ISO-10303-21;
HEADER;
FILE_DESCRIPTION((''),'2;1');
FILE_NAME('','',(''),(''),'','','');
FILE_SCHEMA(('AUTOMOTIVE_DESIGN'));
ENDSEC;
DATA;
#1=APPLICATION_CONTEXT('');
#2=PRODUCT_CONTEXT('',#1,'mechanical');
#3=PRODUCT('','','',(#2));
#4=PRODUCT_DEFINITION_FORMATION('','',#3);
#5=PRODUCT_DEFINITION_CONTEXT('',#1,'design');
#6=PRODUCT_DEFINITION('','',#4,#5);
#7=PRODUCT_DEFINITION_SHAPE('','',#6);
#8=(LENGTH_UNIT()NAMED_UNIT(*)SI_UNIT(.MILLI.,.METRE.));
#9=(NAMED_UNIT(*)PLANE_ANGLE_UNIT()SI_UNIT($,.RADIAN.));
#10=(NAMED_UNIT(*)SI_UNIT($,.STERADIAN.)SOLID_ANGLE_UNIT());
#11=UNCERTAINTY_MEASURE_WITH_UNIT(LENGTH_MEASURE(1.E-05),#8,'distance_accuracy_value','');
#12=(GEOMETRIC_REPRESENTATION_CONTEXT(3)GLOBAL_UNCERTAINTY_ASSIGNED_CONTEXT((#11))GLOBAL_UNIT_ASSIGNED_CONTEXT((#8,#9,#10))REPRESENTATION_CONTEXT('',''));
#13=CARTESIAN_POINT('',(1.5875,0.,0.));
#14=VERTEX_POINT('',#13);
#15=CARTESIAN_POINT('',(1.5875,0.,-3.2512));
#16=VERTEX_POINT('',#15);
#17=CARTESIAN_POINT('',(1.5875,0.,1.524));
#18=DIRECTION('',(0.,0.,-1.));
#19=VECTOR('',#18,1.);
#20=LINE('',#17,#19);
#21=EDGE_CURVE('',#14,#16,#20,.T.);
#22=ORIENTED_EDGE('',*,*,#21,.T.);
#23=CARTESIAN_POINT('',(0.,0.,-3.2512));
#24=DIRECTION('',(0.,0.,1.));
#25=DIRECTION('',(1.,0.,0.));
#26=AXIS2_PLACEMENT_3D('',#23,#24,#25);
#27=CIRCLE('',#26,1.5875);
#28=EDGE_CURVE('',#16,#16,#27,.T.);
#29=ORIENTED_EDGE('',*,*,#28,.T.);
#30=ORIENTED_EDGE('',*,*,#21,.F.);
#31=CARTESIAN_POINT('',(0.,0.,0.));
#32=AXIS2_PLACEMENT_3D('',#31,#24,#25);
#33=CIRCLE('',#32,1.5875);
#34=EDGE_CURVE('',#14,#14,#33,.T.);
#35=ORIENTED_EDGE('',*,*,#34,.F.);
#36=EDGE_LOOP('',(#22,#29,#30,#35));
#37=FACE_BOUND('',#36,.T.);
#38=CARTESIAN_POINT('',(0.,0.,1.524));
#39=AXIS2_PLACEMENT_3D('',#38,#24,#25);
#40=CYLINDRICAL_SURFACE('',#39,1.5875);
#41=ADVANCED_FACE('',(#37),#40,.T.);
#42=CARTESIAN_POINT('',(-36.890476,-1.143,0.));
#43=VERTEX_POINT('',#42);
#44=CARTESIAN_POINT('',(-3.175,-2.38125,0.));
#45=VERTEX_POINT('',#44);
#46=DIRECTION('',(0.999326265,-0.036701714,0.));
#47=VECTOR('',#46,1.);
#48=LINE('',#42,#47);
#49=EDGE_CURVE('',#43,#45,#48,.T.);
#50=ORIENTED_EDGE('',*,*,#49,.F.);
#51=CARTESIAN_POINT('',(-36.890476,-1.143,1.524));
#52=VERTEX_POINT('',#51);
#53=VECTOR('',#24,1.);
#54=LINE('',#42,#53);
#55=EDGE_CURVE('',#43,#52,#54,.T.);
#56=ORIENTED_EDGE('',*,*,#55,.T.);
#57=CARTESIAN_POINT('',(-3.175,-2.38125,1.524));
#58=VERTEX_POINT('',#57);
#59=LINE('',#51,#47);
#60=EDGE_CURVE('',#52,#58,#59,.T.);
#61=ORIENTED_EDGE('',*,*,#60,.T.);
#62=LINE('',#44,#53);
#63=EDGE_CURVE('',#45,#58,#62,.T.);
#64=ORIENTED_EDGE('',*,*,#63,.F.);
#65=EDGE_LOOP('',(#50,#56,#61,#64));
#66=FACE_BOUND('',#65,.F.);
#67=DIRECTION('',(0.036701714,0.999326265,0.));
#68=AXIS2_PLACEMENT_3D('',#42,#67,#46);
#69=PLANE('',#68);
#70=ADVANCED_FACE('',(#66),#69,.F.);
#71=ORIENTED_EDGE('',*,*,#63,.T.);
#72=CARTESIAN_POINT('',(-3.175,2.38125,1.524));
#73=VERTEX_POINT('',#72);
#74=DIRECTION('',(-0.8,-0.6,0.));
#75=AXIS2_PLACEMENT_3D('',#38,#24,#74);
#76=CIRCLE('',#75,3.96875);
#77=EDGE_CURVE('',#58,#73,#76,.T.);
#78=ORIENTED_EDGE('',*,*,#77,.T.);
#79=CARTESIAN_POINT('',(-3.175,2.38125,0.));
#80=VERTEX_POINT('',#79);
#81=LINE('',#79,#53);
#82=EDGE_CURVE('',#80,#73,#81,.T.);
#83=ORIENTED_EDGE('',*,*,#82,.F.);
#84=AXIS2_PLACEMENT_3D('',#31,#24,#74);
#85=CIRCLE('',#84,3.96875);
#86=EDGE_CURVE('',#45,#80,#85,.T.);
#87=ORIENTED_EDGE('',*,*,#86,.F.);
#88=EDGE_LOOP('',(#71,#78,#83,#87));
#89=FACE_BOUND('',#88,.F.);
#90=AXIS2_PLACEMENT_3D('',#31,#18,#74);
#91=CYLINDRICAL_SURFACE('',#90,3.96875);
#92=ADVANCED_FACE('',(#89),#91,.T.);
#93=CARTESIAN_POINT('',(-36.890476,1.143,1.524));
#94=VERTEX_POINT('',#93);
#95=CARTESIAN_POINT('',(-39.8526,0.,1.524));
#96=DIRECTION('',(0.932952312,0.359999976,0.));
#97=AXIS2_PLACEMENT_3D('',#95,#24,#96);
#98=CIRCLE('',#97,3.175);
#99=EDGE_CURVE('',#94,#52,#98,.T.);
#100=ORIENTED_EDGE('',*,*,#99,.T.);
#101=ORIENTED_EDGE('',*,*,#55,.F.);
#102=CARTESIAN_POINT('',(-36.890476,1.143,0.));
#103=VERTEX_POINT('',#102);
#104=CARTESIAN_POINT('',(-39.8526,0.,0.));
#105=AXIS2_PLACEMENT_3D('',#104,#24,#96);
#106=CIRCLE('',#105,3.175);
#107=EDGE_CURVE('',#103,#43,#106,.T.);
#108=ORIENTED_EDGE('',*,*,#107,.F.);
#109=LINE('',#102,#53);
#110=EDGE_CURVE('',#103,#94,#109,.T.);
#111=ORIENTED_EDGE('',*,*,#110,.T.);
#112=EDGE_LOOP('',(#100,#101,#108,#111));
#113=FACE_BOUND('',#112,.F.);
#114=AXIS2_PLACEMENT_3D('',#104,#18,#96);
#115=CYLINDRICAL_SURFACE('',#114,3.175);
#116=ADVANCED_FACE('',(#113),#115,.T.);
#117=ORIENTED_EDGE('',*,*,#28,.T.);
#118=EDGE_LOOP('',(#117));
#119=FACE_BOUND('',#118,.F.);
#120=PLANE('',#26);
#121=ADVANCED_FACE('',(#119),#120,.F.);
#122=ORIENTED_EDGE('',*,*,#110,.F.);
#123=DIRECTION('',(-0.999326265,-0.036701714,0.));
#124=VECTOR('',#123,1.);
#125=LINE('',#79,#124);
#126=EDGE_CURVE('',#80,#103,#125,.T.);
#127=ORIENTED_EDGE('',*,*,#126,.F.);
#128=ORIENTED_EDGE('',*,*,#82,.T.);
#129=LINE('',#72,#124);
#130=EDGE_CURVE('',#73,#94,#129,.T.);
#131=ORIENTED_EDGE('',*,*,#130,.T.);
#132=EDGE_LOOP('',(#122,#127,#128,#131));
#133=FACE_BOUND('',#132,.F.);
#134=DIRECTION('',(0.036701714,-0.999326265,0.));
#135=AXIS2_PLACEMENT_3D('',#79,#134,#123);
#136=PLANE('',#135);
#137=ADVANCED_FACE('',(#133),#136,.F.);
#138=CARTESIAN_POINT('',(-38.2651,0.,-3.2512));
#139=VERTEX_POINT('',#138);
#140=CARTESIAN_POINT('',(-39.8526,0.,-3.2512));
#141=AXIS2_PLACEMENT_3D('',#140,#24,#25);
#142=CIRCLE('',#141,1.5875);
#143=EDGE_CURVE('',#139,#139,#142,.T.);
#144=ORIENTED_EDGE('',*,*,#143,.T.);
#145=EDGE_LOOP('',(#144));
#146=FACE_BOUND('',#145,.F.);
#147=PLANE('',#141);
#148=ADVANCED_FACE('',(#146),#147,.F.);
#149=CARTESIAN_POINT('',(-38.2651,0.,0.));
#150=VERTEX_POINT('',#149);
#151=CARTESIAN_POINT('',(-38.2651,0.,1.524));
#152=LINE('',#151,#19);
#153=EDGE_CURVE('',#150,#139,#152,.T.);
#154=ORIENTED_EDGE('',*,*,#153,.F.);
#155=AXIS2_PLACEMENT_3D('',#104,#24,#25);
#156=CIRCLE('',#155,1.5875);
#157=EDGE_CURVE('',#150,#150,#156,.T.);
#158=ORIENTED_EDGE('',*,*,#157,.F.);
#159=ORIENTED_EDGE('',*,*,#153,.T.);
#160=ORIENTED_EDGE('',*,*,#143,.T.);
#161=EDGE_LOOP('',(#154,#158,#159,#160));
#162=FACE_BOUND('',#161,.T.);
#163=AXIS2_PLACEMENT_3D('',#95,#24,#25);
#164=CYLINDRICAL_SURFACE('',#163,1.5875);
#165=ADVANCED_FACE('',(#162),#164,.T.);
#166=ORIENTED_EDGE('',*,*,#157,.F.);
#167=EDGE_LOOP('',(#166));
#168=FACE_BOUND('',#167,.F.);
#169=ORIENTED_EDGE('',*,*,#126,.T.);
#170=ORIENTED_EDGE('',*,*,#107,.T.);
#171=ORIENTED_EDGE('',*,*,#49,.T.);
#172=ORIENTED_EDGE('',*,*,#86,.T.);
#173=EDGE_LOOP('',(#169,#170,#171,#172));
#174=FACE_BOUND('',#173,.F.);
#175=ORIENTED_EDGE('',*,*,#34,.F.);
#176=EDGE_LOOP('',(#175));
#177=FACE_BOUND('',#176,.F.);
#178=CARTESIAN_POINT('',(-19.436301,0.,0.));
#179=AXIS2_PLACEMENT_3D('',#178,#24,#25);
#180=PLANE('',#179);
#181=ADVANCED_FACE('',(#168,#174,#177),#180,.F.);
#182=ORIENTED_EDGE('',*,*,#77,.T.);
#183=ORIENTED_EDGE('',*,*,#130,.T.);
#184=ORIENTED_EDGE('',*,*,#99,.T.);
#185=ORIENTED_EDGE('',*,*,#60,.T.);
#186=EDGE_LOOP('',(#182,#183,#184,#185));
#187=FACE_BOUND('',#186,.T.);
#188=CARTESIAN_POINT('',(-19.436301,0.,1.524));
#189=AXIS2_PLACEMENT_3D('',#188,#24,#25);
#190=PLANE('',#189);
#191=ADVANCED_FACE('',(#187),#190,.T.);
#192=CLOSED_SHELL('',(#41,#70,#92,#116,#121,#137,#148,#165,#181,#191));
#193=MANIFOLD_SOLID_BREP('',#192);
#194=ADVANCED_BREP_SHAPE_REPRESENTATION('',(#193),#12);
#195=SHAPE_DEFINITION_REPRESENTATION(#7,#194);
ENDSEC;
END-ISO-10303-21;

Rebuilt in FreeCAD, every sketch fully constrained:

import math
import FreeCAD as App
import Part
import Sketcher

V = App.Vector
Q = App.Units.Quantity

doc = App.newDocument("Part")
body = doc.addObject("PartDesign::Body", "Body")

sketch1 = body.newObject("Sketcher::SketchObject", "Sketch")
sketch1.AttachmentSupport = (doc.getObject("XY_Plane"), [""])
sketch1.MapMode = "FlatFace"
sketch1.addGeometry([
    Part.LineSegment(V(-36.9, -1.1, 0), V(-3.2, -2.4, 0)),
    Part.ArcOfCircle(Part.Circle(V(0, 0, 0), V(0, 0, 1), 4), math.radians(-143), math.radians(143)),
    Part.LineSegment(V(-3.2, 2.4, 0), V(-36.9, 1.1, 0)),
    Part.ArcOfCircle(Part.Circle(V(-39.9, 0, 0), V(0, 0, 1), 3.2), math.radians(21), math.radians(339)),
    Part.Circle(V(-39.9, 0, 0), V(0, 0, 1), 1.6),
    Part.Circle(V(0, 0, 0), V(0, 0, 1), 1.6),
], False)
sketch1.addConstraint([
    Sketcher.Constraint("Coincident", 0, 2, 1, 1),
    Sketcher.Constraint("Coincident", 1, 2, 2, 1),
    Sketcher.Constraint("Coincident", 2, 2, 3, 1),
    Sketcher.Constraint("Coincident", 3, 2, 0, 1),
    Sketcher.Constraint("Coincident", 1, 3, -1, 1),
    Sketcher.Constraint("Coincident", 5, 3, -1, 1),
    Sketcher.Constraint("Coincident", 4, 3, 3, 3),
    Sketcher.Constraint("Equal", 4, 5),
    Sketcher.Constraint("Symmetric", 2, 2, 3, 2, -1),
    Sketcher.Constraint("Vertical", 0, 2, 1, 2),
    Sketcher.Constraint("Diameter", 4, Q("0.125 in")),
    Sketcher.Constraint("Radius", 1, Q("0.15625 in")),
    Sketcher.Constraint("Radius", 3, Q("0.125 in")),
    Sketcher.Constraint("DistanceY", 3, 2, 2, 2, Q("0.09 in")),
    Sketcher.Constraint("DistanceX", 3, 3, -1, 1, Q("1.569 in")),
    Sketcher.Constraint("DistanceX", 0, 2, -1, 1, Q("0.125 in")),
])
pad1 = body.newObject("PartDesign::Pad", "Pad")
pad1.Profile = sketch1
pad1.Length = Q("0.06 in")

sketch2 = body.newObject("Sketcher::SketchObject", "Sketch001")
sketch2.AttachmentSupport = (doc.getObject("XY_Plane"), [""])
sketch2.MapMode = "FlatFace"
sketch2.AttachmentOffset = App.Placement(V(0, 0, 0.06 * 25.4), App.Rotation())
sketch2.addGeometry([
    Part.Circle(V(-39.9, 0, 0), V(0, 0, 1), 1.6),
    Part.Circle(V(0, 0, 0), V(0, 0, 1), 1.6),
], False)
sketch2.addConstraint([
    Sketcher.Constraint("Coincident", 1, 3, -1, 1),
    Sketcher.Constraint("Equal", 0, 1),
    Sketcher.Constraint("PointOnObject", 0, 3, -1),
    Sketcher.Constraint("Diameter", 0, Q("0.125 in")),
    Sketcher.Constraint("DistanceX", 0, 3, -1, 1, Q("1.569 in")),
])
pad2 = body.newObject("PartDesign::Pad", "Pad001")
pad2.Profile = sketch2
pad2.Length = Q("0.188 in")
pad2.Reversed = True

doc.recompute()
